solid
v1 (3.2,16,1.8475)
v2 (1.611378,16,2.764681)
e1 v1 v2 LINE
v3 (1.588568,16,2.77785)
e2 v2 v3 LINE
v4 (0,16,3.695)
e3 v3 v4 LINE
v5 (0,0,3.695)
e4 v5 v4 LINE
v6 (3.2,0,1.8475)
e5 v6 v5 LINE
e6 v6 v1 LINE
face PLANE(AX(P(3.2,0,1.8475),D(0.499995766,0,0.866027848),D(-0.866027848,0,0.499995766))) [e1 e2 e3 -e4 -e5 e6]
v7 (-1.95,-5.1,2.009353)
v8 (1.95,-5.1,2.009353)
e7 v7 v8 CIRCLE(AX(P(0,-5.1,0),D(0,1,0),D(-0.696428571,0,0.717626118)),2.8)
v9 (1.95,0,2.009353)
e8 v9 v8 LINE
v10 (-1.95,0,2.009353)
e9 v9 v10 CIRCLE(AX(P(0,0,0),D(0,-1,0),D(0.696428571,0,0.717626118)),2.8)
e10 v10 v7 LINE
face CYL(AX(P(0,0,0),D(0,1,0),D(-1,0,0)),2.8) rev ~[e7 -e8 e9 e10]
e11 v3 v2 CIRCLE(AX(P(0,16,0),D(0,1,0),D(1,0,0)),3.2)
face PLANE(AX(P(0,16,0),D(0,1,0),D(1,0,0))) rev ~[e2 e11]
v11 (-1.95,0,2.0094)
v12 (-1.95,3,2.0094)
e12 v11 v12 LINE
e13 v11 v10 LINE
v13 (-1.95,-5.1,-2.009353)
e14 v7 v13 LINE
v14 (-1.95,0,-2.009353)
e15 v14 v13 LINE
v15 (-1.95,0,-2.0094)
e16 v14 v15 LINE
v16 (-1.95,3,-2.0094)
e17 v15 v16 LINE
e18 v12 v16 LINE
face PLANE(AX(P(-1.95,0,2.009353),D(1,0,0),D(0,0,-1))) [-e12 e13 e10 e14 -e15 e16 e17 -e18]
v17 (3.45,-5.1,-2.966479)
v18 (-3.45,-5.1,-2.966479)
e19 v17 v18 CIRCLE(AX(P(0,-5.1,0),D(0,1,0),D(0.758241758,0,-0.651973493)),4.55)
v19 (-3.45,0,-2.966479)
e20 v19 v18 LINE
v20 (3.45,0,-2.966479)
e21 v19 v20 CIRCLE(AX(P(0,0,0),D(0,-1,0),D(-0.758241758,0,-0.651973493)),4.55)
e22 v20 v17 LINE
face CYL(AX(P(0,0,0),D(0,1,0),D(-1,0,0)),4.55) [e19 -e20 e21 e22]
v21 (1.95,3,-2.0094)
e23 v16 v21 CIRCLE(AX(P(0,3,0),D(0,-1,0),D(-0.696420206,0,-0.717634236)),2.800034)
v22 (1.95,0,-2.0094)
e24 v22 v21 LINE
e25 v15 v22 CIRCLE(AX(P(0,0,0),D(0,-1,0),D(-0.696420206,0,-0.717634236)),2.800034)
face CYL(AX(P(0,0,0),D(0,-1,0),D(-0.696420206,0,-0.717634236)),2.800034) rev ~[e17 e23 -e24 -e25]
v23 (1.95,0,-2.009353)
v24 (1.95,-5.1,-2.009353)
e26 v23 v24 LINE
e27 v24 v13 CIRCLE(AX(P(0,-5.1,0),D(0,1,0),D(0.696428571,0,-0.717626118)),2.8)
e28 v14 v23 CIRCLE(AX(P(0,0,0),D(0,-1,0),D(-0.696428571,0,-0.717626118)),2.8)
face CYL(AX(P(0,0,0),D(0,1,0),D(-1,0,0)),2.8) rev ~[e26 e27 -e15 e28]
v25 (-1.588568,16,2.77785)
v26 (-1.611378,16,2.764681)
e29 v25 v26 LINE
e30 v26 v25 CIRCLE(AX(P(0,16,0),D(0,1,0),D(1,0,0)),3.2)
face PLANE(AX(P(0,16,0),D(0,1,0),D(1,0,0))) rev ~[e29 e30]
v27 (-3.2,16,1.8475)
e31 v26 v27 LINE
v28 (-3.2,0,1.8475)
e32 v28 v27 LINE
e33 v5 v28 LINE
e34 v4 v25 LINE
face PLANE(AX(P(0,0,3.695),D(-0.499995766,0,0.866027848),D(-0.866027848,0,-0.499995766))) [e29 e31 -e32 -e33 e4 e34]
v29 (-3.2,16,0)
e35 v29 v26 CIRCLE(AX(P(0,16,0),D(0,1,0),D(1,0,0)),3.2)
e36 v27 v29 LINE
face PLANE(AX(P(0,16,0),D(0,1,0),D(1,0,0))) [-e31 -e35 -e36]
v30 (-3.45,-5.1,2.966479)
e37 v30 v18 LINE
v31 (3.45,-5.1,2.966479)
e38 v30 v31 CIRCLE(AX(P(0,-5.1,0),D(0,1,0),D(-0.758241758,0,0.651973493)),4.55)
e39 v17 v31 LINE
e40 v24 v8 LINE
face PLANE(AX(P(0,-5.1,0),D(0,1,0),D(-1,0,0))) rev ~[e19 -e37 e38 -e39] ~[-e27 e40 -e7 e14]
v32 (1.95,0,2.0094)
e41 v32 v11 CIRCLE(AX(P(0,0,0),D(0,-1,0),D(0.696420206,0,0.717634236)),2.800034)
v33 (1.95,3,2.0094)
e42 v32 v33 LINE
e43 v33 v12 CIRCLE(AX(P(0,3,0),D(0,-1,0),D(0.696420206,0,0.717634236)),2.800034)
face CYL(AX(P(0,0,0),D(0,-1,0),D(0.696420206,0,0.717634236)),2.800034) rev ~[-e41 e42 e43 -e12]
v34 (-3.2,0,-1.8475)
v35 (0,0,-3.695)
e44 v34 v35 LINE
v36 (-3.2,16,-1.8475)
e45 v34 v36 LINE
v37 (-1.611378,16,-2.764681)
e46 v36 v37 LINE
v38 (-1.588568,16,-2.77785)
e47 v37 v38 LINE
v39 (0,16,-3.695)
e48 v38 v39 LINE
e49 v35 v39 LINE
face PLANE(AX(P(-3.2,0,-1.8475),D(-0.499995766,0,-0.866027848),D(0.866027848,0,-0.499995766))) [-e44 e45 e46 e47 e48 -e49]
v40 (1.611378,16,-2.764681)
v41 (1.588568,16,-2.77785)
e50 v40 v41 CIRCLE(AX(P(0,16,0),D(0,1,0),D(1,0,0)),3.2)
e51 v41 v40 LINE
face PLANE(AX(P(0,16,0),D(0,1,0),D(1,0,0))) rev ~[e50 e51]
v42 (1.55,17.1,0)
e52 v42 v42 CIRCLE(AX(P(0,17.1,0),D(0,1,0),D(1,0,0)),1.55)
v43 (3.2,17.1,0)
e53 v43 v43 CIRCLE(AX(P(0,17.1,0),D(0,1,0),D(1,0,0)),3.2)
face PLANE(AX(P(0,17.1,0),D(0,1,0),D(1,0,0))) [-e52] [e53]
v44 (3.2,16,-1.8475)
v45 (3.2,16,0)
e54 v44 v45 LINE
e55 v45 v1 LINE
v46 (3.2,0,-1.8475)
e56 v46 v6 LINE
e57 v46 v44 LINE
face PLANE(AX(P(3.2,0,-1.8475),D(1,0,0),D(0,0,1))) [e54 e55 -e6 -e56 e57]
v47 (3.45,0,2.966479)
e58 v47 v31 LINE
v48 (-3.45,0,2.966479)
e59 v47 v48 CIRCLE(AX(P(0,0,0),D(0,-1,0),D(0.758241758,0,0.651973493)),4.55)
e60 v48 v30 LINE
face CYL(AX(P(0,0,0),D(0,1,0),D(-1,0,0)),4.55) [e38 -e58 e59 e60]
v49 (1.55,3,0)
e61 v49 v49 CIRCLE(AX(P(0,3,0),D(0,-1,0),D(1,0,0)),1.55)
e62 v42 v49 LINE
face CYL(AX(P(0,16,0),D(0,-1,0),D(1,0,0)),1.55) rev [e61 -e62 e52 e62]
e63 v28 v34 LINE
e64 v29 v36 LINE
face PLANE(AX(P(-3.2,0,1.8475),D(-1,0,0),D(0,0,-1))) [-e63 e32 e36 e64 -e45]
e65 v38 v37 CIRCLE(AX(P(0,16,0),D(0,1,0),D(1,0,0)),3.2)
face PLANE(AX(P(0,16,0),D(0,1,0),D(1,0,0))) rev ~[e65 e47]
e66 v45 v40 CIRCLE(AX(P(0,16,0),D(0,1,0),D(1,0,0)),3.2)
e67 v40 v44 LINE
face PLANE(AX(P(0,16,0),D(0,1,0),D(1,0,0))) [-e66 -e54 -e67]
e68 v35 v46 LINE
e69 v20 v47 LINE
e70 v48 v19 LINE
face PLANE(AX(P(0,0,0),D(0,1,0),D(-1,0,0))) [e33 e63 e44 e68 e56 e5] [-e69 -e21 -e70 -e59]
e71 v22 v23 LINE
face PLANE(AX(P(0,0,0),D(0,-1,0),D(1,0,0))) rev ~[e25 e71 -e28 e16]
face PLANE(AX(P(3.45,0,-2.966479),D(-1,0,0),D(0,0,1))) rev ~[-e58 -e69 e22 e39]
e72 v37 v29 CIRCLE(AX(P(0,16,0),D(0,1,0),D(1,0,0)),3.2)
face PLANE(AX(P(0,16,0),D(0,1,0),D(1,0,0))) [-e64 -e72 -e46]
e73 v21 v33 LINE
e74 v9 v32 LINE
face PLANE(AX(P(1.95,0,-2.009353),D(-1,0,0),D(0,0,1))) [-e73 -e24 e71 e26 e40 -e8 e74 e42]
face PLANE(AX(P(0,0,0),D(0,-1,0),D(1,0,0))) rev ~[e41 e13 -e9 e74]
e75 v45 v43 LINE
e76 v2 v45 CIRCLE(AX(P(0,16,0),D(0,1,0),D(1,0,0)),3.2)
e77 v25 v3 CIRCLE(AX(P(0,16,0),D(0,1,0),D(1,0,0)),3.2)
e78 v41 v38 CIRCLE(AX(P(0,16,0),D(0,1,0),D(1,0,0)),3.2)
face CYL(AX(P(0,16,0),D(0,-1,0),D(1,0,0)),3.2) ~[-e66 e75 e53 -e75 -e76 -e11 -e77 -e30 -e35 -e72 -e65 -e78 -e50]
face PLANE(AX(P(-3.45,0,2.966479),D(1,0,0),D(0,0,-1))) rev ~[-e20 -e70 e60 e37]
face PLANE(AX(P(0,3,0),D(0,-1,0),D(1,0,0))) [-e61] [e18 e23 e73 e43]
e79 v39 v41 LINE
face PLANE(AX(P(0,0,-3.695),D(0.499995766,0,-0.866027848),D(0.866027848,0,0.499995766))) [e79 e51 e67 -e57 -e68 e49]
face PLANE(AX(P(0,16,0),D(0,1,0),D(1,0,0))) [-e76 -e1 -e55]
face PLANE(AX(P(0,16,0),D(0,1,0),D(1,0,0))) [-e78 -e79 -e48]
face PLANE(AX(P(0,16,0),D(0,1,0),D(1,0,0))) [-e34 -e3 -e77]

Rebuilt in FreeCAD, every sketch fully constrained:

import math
import FreeCAD as App
import Part
import Sketcher

V = App.Vector
Q = App.Units.Quantity


def add_polygon(sketch, points):
    """Adds a closed chain of lines whose ends are joined by coincident constraints."""
    first, n = sketch.GeometryCount, len(points)
    for a, b in zip(points, points[1:] + points[:1]):
        sketch.addGeometry(Part.LineSegment(App.Vector(*a, 0), App.Vector(*b, 0)), False)
    for i in range(n):
        sketch.addConstraint(Sketcher.Constraint("Coincident", first + i, 2, first + (i + 1) % n, 1))

doc = App.newDocument("Part")
params = doc.addObject("Spreadsheet::Sheet", "Params")
for row, (alias, value) in enumerate([
    ("sketch1_radius", "2.8 mm"),
    ("sketch1_radius2", "4.55 mm"),
    ("pad1_length", "5.1 mm"),
    ("sketch2_diameter", "3.1 mm"),
    ("pad2_length", "16 mm"),
    ("sketch3_diameter", "3.1 mm"),
    ("sketch3_radius", "2.8 mm"),
    ("pocket1_length", "3 mm"),
    ("sketch4_diameter", "6.4 mm"),
    ("sketch4_diameter2", "3.1 mm"),
    ("pad3_length", "1.1 mm"),
], start=1):
    params.set(f"A{row}", alias)
    params.set(f"B{row}", "=" + value)
    params.setAlias(f"B{row}", alias)

body = doc.addObject("PartDesign::Body", "Body")

# Sketch on XZ plane
sketch1 = doc.addObject("Sketcher::SketchObject", "Sketch")
body.addObject(sketch1)
sketch1.AttachmentSupport = (doc.XZ_Plane, [""])
sketch1.MapMode = "FlatFace"
sketch1.addGeometry([
    Part.LineSegment(V(-3.45, -2.966479, 0), V(-3.45, 2.966479, 0)),  # 0
    Part.ArcOfCircle(Part.Circle(V(0, 0, 0), V(0, 0, 1), 4.55), math.radians(40.690561), math.radians(139.309439)),  # 1
    Part.LineSegment(V(3.45, 2.966479, 0), V(3.45, -2.966479, 0)),  # 2
    Part.ArcOfCircle(Part.Circle(V(0, 0, 0), V(0, 0, 1), 4.55), math.radians(-139.309439), math.radians(-40.690561)),  # 3
    Part.LineSegment(V(-1.95, 2.009353, 0), V(-1.95, -2.009353, 0)),  # 4
    Part.ArcOfCircle(Part.Circle(V(0, 0, 0), V(0, 0, 1), 2.8), math.radians(-134.141165), math.radians(-45.858835)),  # 5
    Part.LineSegment(V(1.95, -2.009353, 0), V(1.95, 2.009353, 0)),  # 6
    Part.ArcOfCircle(Part.Circle(V(0, 0, 0), V(0, 0, 1), 2.8), math.radians(45.858835), math.radians(134.141165)),  # 7
], False)
sketch1.addConstraint([
    Sketcher.Constraint("Coincident", 0, 2, 1, 2),
    Sketcher.Constraint("Coincident", 1, 1, 2, 1),
    Sketcher.Constraint("Coincident", 2, 2, 3, 2),
    Sketcher.Constraint("Coincident", 3, 1, 0, 1),
    Sketcher.Constraint("Coincident", 4, 2, 5, 1),
    Sketcher.Constraint("Coincident", 5, 2, 6, 1),
    Sketcher.Constraint("Coincident", 6, 2, 7, 1),
    Sketcher.Constraint("Coincident", 7, 2, 4, 1),
    Sketcher.Constraint("Vertical", 0),
    Sketcher.Constraint("Vertical", 2),
    Sketcher.Constraint("Vertical", 4),
    Sketcher.Constraint("Vertical", 6),
    Sketcher.Constraint("Coincident", 1, 3, -1, 1),
    Sketcher.Constraint("Coincident", 3, 3, -1, 1),
    Sketcher.Constraint("Coincident", 5, 3, -1, 1),
    Sketcher.Constraint("Coincident", 7, 3, -1, 1),
    Sketcher.Constraint("Equal", 1, 3),
    Sketcher.Constraint("Equal", 5, 7),
    Sketcher.Constraint("Horizontal", 0, 2, 1, 1),
    Sketcher.Constraint("Horizontal", 4, 2, 5, 2),
    Sketcher.Constraint("Radius", 5, 2.8),
    Sketcher.Constraint("Radius", 1, 4.55),
    Sketcher.Constraint("DistanceX", 0, 2, 1, 1, 6.9),
    Sketcher.Constraint("DistanceX", 3, 1, 4, 2, 1.5),
])
sketch1.setExpression("Constraints[20]", "Params.sketch1_radius")
sketch1.setExpression("Constraints[21]", "Params.sketch1_radius2")
pad1 = doc.addObject("PartDesign::Pad", "Pad")
body.addObject(pad1)
pad1.Profile = sketch1
pad1.setExpression("Length", "Params.pad1_length")

# Sketch on XZ plane
sketch2 = doc.addObject("Sketcher::SketchObject", "Sketch001")
body.addObject(sketch2)
sketch2.AttachmentSupport = (doc.XZ_Plane, [""])
sketch2.MapMode = "FlatFace"
add_polygon(sketch2, [(0, -3.695), (-3.2, -1.8475), (-3.2, 1.8475), (0, 3.695), (3.2, 1.8475), (3.2, -1.8475)])  # lines 0-5
sketch2.addGeometry(Part.Circle(V(0, 0, 0), V(0, 0, 1), 1.55), False)  # 6
sketch2.addConstraint([
    Sketcher.Constraint("Vertical", 1),
    Sketcher.Constraint("Vertical", 4),
    Sketcher.Constraint("Coincident", 6, 3, -1, 1),
    Sketcher.Constraint("Symmetric", 0, 2, 3, 2, -1, 1),
    Sketcher.Constraint("Symmetric", 2, 2, 5, 2, -1, 1),
    Sketcher.Constraint("PointOnObject", 2, 2, -2),
    Sketcher.Constraint("Parallel", 2, 5),
    Sketcher.Constraint("Horizontal", 1, 2, 3, 2),
    Sketcher.Constraint("Diameter", 6, 3.1),
    Sketcher.Constraint("DistanceX", 1, 2, 3, 2, 6.4),
    Sketcher.Constraint("Angle", 0, Q("150.0003 deg")),
    Sketcher.Constraint("DistanceY", 1, 1, 1, 2, 3.695),
])
sketch2.setExpression("Constraints[14]", "Params.sketch2_diameter")
pad2 = doc.addObject("PartDesign::Pad", "Pad001")
body.addObject(pad2)
pad2.Profile = sketch2
pad2.setExpression("Length", "Params.pad2_length")
pad2.Reversed = True

# Sketch on XZ plane
sketch3 = doc.addObject("Sketcher::SketchObject", "Sketch002")
body.addObject(sketch3)
sketch3.AttachmentSupport = (doc.XZ_Plane, [""])
sketch3.MapMode = "FlatFace"
sketch3.addGeometry([
    Part.ArcOfCircle(Part.Circle(V(0, 0, 0), V(0, 0, 1), 2.800034), math.radians(-134.140498), math.radians(-45.859502)),  # 0
    Part.LineSegment(V(1.95, -2.0094, 0), V(1.95, 2.0094, 0)),  # 1
    Part.ArcOfCircle(Part.Circle(V(0, 0, 0), V(0, 0, 1), 2.800034), math.radians(45.859502), math.radians(134.140498)),  # 2
    Part.LineSegment(V(-1.95, 2.0094, 0), V(-1.95, -2.0094, 0)),  # 3
    Part.Circle(V(0, 0, 0), V(0, 0, 1), 1.55),  # 4
], False)
sketch3.addConstraint([
    Sketcher.Constraint("Coincident", 0, 2, 1, 1),
    Sketcher.Constraint("Coincident", 1, 2, 2, 1),
    Sketcher.Constraint("Coincident", 2, 2, 3, 1),
    Sketcher.Constraint("Coincident", 3, 2, 0, 1),
    Sketcher.Constraint("Vertical", 1),
    Sketcher.Constraint("Vertical", 3),
    Sketcher.Constraint("Coincident", 0, 3, -1, 1),
    Sketcher.Constraint("Coincident", 2, 3, -1, 1),
    Sketcher.Constraint("Coincident", 4, 3, -1, 1),
    Sketcher.Constraint("Equal", 0, 2),
    Sketcher.Constraint("Horizontal", 1, 2, 2, 2),
    Sketcher.Constraint("Diameter", 4, 3.1),
    Sketcher.Constraint("Radius", 0, 2.8),
    Sketcher.Constraint("DistanceX", 2, 2, 1, 2, 3.9),
])
sketch3.setExpression("Constraints[11]", "Params.sketch3_diameter")
sketch3.setExpression("Constraints[12]", "Params.sketch3_radius")
pocket1 = doc.addObject("PartDesign::Pocket", "Pocket")
body.addObject(pocket1)
pocket1.Profile = sketch3
pocket1.setExpression("Length", "Params.pocket1_length")

# Sketch on XZ plane
sketch4 = doc.addObject("Sketcher::SketchObject", "Sketch003")
body.addObject(sketch4)
sketch4.AttachmentSupport = (doc.XZ_Plane, [""])
sketch4.MapMode = "FlatFace"
sketch4.AttachmentOffset = App.Placement(V(0, 0, -16), App.Rotation())
sketch4.addGeometry([
    Part.Circle(V(0, 0, 0), V(0, 0, 1), 3.2),
    Part.Circle(V(0, 0, 0), V(0, 0, 1), 1.55),
], False)
sketch4.addConstraint([
    Sketcher.Constraint("Coincident", 0, 3, -1, 1),
    Sketcher.Constraint("Coincident", 1, 3, -1, 1),
    Sketcher.Constraint("Diameter", 0, 6.4),
    Sketcher.Constraint("Diameter", 1, 3.1),
])
sketch4.setExpression("Constraints[2]", "Params.sketch4_diameter")
sketch4.setExpression("Constraints[3]", "Params.sketch4_diameter2")
pad3 = doc.addObject("PartDesign::Pad", "Pad002")
body.addObject(pad3)
pad3.Profile = sketch4
pad3.setExpression("Length", "Params.pad3_length")
pad3.Reversed = True

doc.recompute()
